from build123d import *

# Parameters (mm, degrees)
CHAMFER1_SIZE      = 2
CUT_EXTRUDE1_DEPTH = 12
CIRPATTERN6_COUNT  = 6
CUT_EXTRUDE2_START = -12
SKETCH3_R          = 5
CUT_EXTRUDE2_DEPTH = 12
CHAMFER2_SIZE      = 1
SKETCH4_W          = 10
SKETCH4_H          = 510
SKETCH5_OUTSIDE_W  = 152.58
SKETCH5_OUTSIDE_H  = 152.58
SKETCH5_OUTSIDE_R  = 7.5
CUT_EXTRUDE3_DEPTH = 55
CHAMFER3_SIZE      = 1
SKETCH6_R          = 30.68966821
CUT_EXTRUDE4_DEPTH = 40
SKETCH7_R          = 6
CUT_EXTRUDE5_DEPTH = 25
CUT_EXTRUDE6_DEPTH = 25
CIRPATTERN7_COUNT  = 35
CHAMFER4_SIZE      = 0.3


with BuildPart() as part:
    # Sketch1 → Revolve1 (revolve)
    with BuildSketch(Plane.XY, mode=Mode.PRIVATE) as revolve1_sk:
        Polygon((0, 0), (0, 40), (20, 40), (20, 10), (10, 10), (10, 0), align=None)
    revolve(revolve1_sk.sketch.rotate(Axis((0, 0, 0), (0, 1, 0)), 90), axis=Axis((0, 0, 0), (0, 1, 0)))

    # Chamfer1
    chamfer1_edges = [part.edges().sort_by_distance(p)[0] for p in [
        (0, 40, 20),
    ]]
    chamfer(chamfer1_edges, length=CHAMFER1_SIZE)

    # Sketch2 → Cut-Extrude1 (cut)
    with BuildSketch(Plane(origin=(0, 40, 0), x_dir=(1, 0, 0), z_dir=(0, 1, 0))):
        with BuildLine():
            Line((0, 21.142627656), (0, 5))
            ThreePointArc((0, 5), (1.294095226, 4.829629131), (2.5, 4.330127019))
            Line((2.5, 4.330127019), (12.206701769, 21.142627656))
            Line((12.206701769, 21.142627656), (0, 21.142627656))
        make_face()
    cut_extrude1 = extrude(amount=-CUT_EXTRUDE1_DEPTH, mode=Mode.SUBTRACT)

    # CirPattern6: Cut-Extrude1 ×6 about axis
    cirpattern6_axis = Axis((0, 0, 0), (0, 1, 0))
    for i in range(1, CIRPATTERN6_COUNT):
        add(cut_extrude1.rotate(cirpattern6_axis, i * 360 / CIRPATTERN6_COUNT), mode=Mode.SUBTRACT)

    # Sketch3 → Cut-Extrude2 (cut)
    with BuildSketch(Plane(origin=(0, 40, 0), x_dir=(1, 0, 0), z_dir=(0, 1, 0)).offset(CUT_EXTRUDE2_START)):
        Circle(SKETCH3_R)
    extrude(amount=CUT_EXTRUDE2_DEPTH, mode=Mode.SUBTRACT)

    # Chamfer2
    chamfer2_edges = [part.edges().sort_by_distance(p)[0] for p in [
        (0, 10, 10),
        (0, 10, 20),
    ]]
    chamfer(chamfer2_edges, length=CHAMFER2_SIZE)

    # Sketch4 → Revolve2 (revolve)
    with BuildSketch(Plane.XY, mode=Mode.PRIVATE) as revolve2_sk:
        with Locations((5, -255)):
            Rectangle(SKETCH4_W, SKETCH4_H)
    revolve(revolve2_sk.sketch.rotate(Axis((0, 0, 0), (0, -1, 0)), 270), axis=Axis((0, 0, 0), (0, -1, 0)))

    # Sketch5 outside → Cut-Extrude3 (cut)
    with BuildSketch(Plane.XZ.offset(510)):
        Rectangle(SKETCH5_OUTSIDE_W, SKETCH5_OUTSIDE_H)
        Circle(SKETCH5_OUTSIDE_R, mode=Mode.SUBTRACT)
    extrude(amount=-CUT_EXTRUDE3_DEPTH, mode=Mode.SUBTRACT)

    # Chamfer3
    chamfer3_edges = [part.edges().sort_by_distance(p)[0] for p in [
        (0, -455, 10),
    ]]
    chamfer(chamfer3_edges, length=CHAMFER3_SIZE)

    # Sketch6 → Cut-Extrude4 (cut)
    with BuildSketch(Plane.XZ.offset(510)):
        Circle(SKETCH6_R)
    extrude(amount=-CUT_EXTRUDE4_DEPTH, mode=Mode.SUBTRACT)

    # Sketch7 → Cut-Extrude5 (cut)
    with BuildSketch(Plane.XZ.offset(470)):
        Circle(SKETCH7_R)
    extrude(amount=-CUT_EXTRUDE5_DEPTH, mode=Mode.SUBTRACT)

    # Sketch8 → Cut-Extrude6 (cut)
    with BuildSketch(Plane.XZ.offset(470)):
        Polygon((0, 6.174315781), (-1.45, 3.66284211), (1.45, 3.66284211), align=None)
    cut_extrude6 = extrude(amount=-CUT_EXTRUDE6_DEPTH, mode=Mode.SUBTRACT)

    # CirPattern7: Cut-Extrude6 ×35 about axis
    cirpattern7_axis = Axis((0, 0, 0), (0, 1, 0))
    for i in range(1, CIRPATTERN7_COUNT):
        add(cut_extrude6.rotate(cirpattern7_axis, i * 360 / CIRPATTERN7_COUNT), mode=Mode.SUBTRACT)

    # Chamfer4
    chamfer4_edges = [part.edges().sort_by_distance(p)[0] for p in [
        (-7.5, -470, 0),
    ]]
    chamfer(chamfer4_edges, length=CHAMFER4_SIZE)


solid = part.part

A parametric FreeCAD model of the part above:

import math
import FreeCAD as App
import Part
import Sketcher
from FreeCAD import Vector
Q = App.Units.Quantity


def edges_at(feature, points):
    """Names of the edges that pass closest to the given points."""
    edges = feature.Shape.Edges
    near = lambda p: min(range(len(edges)), key=lambda i: edges[i].distToShape(Part.Vertex(*p))[0])
    return sorted({f"Edge{near(p) + 1}" for p in points})

doc = App.newDocument("Part")
params = doc.addObject("Spreadsheet::Sheet", "Params")
for row, (alias, value) in enumerate([
    ("sketch1_width", "10 mm"),
    ("sketch1_height", "40 mm"),
    ("revolution_angle", "360 deg"),
    ("chamfer_size", "2 mm"),
    ("sketch2_radius", "5 mm"),
    ("pocket1_length", "12 mm"),
    ("sketch3_diameter", "10 mm"),
    ("pocket2_length", "12 mm"),
    ("chamfer2_size", "1 mm"),
    ("sketch4_width", "10 mm"),
    ("sketch4_height", "510 mm"),
    ("revolution2_angle", "360 deg"),
    ("sketch5_diameter", "15 mm"),
    ("sketch5_width", "152.58 mm"),
    ("pocket3_length", "55 mm"),
    ("chamfer3_size", "1 mm"),
    ("pocket4_length", "40 mm"),
    ("sketch7_diameter", "12 mm"),
    ("pocket5_length", "25 mm"),
    ("sketch8_width", "2.9 mm"),
    ("pocket6_length", "25 mm"),
    ("chamfer4_size", "0.3 mm"),
], start=1):
    params.set(f"A{row}", alias)
    params.set(f"B{row}", "=" + value)
    params.setAlias(f"B{row}", alias)

body = doc.addObject("PartDesign::Body", "Body")

sketch1 = doc.addObject("Sketcher::SketchObject", "Sketch")
body.addObject(sketch1)
sketch1.AttachmentSupport = (doc.XY_Plane, [""])
sketch1.MapMode = "FlatFace"
sketch1.addGeometry([
    Part.LineSegment(Vector(0, 40, 0), Vector(0, 0, 0)),
    Part.LineSegment(Vector(0, 0, 0), Vector(10, 0, 0)),
    Part.LineSegment(Vector(10, 0, 0), Vector(10, 10, 0)),
    Part.LineSegment(Vector(10, 10, 0), Vector(20, 10, 0)),
    Part.LineSegment(Vector(20, 10, 0), Vector(20, 40, 0)),
    Part.LineSegment(Vector(20, 40, 0), Vector(0, 40, 0)),
], False)
sketch1.addConstraint([
    Sketcher.Constraint("Coincident", 0, 2, 1, 1),
    Sketcher.Constraint("Coincident", 1, 2, 2, 1),
    Sketcher.Constraint("Coincident", 2, 2, 3, 1),
    Sketcher.Constraint("Coincident", 3, 2, 4, 1),
    Sketcher.Constraint("Coincident", 4, 2, 5, 1),
    Sketcher.Constraint("Coincident", 5, 2, 0, 1),
    Sketcher.Constraint("Vertical", 0),
    Sketcher.Constraint("Horizontal", 1),
    Sketcher.Constraint("Vertical", 2),
    Sketcher.Constraint("Horizontal", 3),
    Sketcher.Constraint("Vertical", 4),
    Sketcher.Constraint("Horizontal", 5),
    Sketcher.Constraint("Coincident", 0, 2, -1, 1),
    Sketcher.Constraint("Equal", 1, 3),
    Sketcher.Constraint("Equal", 3, 2),
    Sketcher.Constraint("DistanceX", 1, 1, 1, 2, 10.0),
    Sketcher.Constraint("DistanceY", 0, 2, 0, 1, 40.0),
])
sketch1.setExpression("Constraints[15]", "Params.sketch1_width")
sketch1.setExpression("Constraints[16]", "Params.sketch1_height")
revolution = doc.addObject("PartDesign::Revolution", "Revolution")
body.addObject(revolution)
revolution.Profile = sketch1
revolution.ReferenceAxis = (sketch1, ["V_Axis"])
revolution.setExpression("Angle", "Params.revolution_angle")
doc.recompute()

chamfer = doc.addObject("PartDesign::Chamfer", "Chamfer")
body.addObject(chamfer)
chamfer.Base = (revolution, edges_at(revolution, [(0, 40, 20)]))
chamfer.setExpression("Size", "Params.chamfer_size")

sketch2 = doc.addObject("Sketcher::SketchObject", "Sketch001")
body.addObject(sketch2)
sketch2.AttachmentSupport = (doc.XZ_Plane, [""])
sketch2.MapMode = "FlatFace"
sketch2.AttachmentOffset = App.Placement(Vector(0, 0, -40), App.Rotation())
sketch2.addGeometry([
    Part.LineSegment(Vector(0, -21.1, 0), Vector(0, -5, 0)),
    Part.ArcOfCircle(Part.Circle(Vector(0, 0, 0), Vector(0, 0, 1), 5), math.radians(-90), math.radians(-60)),
    Part.LineSegment(Vector(2.5, -4.3, 0), Vector(12.2, -21.1, 0)),
    Part.LineSegment(Vector(12.2, -21.1, 0), Vector(0, -21.1, 0)),
], False)
sketch2.addConstraint([
    Sketcher.Constraint("Coincident", 0, 2, 1, 1),
    Sketcher.Constraint("Coincident", 1, 2, 2, 1),
    Sketcher.Constraint("Coincident", 2, 2, 3, 1),
    Sketcher.Constraint("Coincident", 3, 2, 0, 1),
    Sketcher.Constraint("Vertical", 0),
    Sketcher.Constraint("Horizontal", 3),
    Sketcher.Constraint("Coincident", 1, 3, -1, 1),
    Sketcher.Constraint("PointOnObject", 0, 2, -2),
    Sketcher.Constraint("Radius", 1, 5.0),
    Sketcher.Constraint("Angle", 2, Q("-60 deg")),
    Sketcher.Constraint("DistanceX", -1, 1, 1, 2, 2.5),
    Sketcher.Constraint("DistanceX", 3, 2, 3, 1, 12.206702),
])
sketch2.setExpression("Constraints[8]", "Params.sketch2_radius")
pocket1 = doc.addObject("PartDesign::Pocket", "Pocket")
body.addObject(pocket1)
pocket1.Profile = sketch2
pocket1.setExpression("Length", "Params.pocket1_length")
pocket1.Reversed = True
doc.recompute()

polarpattern = doc.addObject("PartDesign::PolarPattern", "PolarPattern")
body.addObject(polarpattern)
polarpattern.Originals = [pocket1]
polarpattern.Axis = (doc.Y_Axis, [""])
polarpattern.Angle = 360
polarpattern.Occurrences = 6
body.Tip = polarpattern

sketch3 = doc.addObject("Sketcher::SketchObject", "Sketch002")
body.addObject(sketch3)
sketch3.AttachmentSupport = (doc.XZ_Plane, [""])
sketch3.MapMode = "FlatFace"
sketch3.AttachmentOffset = App.Placement(Vector(0, 0, -28), App.Rotation())
sketch3.addGeometry(Part.Circle(Vector(0, 0, 0), Vector(0, 0, 1), 5), False)
sketch3.addConstraint([
    Sketcher.Constraint("Coincident", 0, 3, -1, 1),
    Sketcher.Constraint("Diameter", 0, 10.0),
])
sketch3.setExpression("Constraints[1]", "Params.sketch3_diameter")
pocket2 = doc.addObject("PartDesign::Pocket", "Pocket001")
body.addObject(pocket2)
pocket2.Profile = sketch3
pocket2.setExpression("Length", "Params.pocket2_length")
doc.recompute()

chamfer2 = doc.addObject("PartDesign::Chamfer", "Chamfer001")
body.addObject(chamfer2)
chamfer2.Base = (pocket2, edges_at(pocket2, [(0, 10, 10), (0, 10, 20)]))
chamfer2.setExpression("Size", "Params.chamfer2_size")

sketch4 = doc.addObject("Sketcher::SketchObject", "Sketch003")
body.addObject(sketch4)
sketch4.AttachmentSupport = (doc.XY_Plane, [""])
sketch4.MapMode = "FlatFace"
sketch4.addGeometry([
    Part.LineSegment(Vector(0, 0, 0), Vector(0, -510, 0)),
    Part.LineSegment(Vector(0, -510, 0), Vector(10, -510, 0)),
    Part.LineSegment(Vector(10, -510, 0), Vector(10, 0, 0)),
    Part.LineSegment(Vector(10, 0, 0), Vector(0, 0, 0)),
], False)
sketch4.addConstraint([
    Sketcher.Constraint("Coincident", 0, 2, 1, 1),
    Sketcher.Constraint("Coincident", 1, 2, 2, 1),
    Sketcher.Constraint("Coincident", 2, 2, 3, 1),
    Sketcher.Constraint("Coincident", 3, 2, 0, 1),
    Sketcher.Constraint("Vertical", 0),
    Sketcher.Constraint("Horizontal", 1),
    Sketcher.Constraint("Vertical", 2),
    Sketcher.Constraint("Horizontal", 3),
    Sketcher.Constraint("Coincident", 3, 2, -1, 1),
    Sketcher.Constraint("DistanceX", 1, 1, 1, 2, 10.0),
    Sketcher.Constraint("DistanceY", 0, 2, 0, 1, 510.0),
])
sketch4.setExpression("Constraints[9]", "Params.sketch4_width")
sketch4.setExpression("Constraints[10]", "Params.sketch4_height")
revolution2 = doc.addObject("PartDesign::Revolution", "Revolution001")
body.addObject(revolution2)
revolution2.Profile = sketch4
revolution2.ReferenceAxis = (sketch4, ["V_Axis"])
revolution2.setExpression("Angle", "Params.revolution2_angle")

sketch5 = doc.addObject("Sketcher::SketchObject", "Sketch004")
body.addObject(sketch5)
sketch5.AttachmentSupport = (doc.XZ_Plane, [""])
sketch5.MapMode = "FlatFace"
sketch5.AttachmentOffset = App.Placement(Vector(0, 0, 510), App.Rotation())
sketch5.addGeometry([
    Part.LineSegment(Vector(-76, 76, 0), Vector(-76, -76, 0)),
    Part.LineSegment(Vector(-76, -76, 0), Vector(76, -76, 0)),
    Part.LineSegment(Vector(76, -76, 0), Vector(76, 76, 0)),
    Part.LineSegment(Vector(76, 76, 0), Vector(-76, 76, 0)),
    Part.Circle(Vector(0, 0, 0), Vector(0, 0, 1), 8),
], False)
sketch5.addConstraint([
    Sketcher.Constraint("Coincident", 0, 2, 1, 1),
    Sketcher.Constraint("Coincident", 1, 2, 2, 1),
    Sketcher.Constraint("Coincident", 2, 2, 3, 1),
    Sketcher.Constraint("Coincident", 3, 2, 0, 1),
    Sketcher.Constraint("Vertical", 0),
    Sketcher.Constraint("Horizontal", 1),
    Sketcher.Constraint("Vertical", 2),
    Sketcher.Constraint("Horizontal", 3),
    Sketcher.Constraint("Coincident", 4, 3, -1, 1),
    Sketcher.Constraint("Symmetric", 0, 2, 2, 2, -1, 1),
    Sketcher.Constraint("Equal", 3, 0),
    Sketcher.Constraint("Diameter", 4, 15.0),
    Sketcher.Constraint("DistanceX", 1, 1, 1, 2, 152.58),
])
sketch5.setExpression("Constraints[11]", "Params.sketch5_diameter")
sketch5.setExpression("Constraints[12]", "Params.sketch5_width")
pocket3 = doc.addObject("PartDesign::Pocket", "Pocket002")
body.addObject(pocket3)
pocket3.Profile = sketch5
pocket3.setExpression("Length", "Params.pocket3_length")
doc.recompute()

chamfer3 = doc.addObject("PartDesign::Chamfer", "Chamfer002")
body.addObject(chamfer3)
chamfer3.Base = (pocket3, edges_at(pocket3, [(0, -455, 10)]))
chamfer3.setExpression("Size", "Params.chamfer3_size")

sketch6 = doc.addObject("Sketcher::SketchObject", "Sketch005")
body.addObject(sketch6)
sketch6.AttachmentSupport = (doc.XZ_Plane, [""])
sketch6.MapMode = "FlatFace"
sketch6.AttachmentOffset = App.Placement(Vector(0, 0, 510), App.Rotation())
sketch6.addGeometry(Part.Circle(Vector(0, 0, 0), Vector(0, 0, 1), 31), False)
sketch6.addConstraint([
    Sketcher.Constraint("Coincident", 0, 3, -1, 1),
    Sketcher.Constraint("Diameter", 0, 61.379336),
])
pocket4 = doc.addObject("PartDesign::Pocket", "Pocket003")
body.addObject(pocket4)
pocket4.Profile = sketch6
pocket4.setExpression("Length", "Params.pocket4_length")

sketch7 = doc.addObject("Sketcher::SketchObject", "Sketch006")
body.addObject(sketch7)
sketch7.AttachmentSupport = (doc.XZ_Plane, [""])
sketch7.MapMode = "FlatFace"
sketch7.AttachmentOffset = App.Placement(Vector(0, 0, 470), App.Rotation())
sketch7.addGeometry(Part.Circle(Vector(0, 0, 0), Vector(0, 0, 1), 6), False)
sketch7.addConstraint([
    Sketcher.Constraint("Coincident", 0, 3, -1, 1),
    Sketcher.Constraint("Diameter", 0, 12.0),
])
sketch7.setExpression("Constraints[1]", "Params.sketch7_diameter")
pocket5 = doc.addObject("PartDesign::Pocket", "Pocket004")
body.addObject(pocket5)
pocket5.Profile = sketch7
pocket5.setExpression("Length", "Params.pocket5_length")

sketch8 = doc.addObject("Sketcher::SketchObject", "Sketch007")
body.addObject(sketch8)
sketch8.AttachmentSupport = (doc.XZ_Plane, [""])
sketch8.MapMode = "FlatFace"
sketch8.AttachmentOffset = App.Placement(Vector(0, 0, 470), App.Rotation())
sketch8.addGeometry([
    Part.LineSegment(Vector(0, 6.2, 0), Vector(-1.4, 3.7, 0)),
    Part.LineSegment(Vector(-1.4, 3.7, 0), Vector(1.4, 3.7, 0)),
    Part.LineSegment(Vector(1.4, 3.7, 0), Vector(0, 6.2, 0)),
], False)
sketch8.addConstraint([
    Sketcher.Constraint("Coincident", 0, 2, 1, 1),
    Sketcher.Constraint("Coincident", 1, 2, 2, 1),
    Sketcher.Constraint("Coincident", 2, 2, 0, 1),
    Sketcher.Constraint("Horizontal", 1),
    Sketcher.Constraint("PointOnObject", 2, 2, -2),
    Sketcher.Constraint("Equal", 0, 2),
    Sketcher.Constraint("Angle", 0, Q("-120 deg")),
    Sketcher.Constraint("DistanceX", 1, 1, 1, 2, 2.9),
    Sketcher.Constraint("DistanceY", -1, 1, 0, 2, 3.662842),
])
sketch8.setExpression("Constraints[7]", "Params.sketch8_width")
pocket6 = doc.addObject("PartDesign::Pocket", "Pocket005")
body.addObject(pocket6)
pocket6.Profile = sketch8
pocket6.setExpression("Length", "Params.pocket6_length")
doc.recompute()

polarpattern2 = doc.addObject("PartDesign::PolarPattern", "PolarPattern001")
body.addObject(polarpattern2)
polarpattern2.Originals = [pocket6]
polarpattern2.Axis = (doc.Y_Axis, [""])
polarpattern2.Angle = 360
polarpattern2.Occurrences = 35
body.Tip = polarpattern2
doc.recompute()

chamfer4 = doc.addObject("PartDesign::Chamfer", "Chamfer003")
body.addObject(chamfer4)
chamfer4.Base = (polarpattern2, edges_at(polarpattern2, [(-7.5, -470, 0)]))
chamfer4.setExpression("Size", "Params.chamfer4_size")

doc.recompute()
